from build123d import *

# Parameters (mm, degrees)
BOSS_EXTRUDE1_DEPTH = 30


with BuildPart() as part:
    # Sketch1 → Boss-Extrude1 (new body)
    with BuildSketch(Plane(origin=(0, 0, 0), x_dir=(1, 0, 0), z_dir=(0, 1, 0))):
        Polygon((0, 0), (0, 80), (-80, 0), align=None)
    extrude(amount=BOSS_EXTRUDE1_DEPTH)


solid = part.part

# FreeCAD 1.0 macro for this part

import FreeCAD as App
import Part
import Sketcher
Q = App.Units.Quantity

doc = App.newDocument("Part")
params = doc.addObject("Spreadsheet::Sheet", "Params")
for row, (alias, value) in enumerate([
    ("sketch1_width", "80 mm"),
    ("pad1_length", "30 mm"),
], start=1):
    params.set(f"A{row}", alias)
    params.set(f"B{row}", "=" + value)
    params.setAlias(f"B{row}", alias)

body = doc.addObject("PartDesign::Body", "Body")

# Sketch on XZ plane
sketch1 = body.newObject("Sketcher::SketchObject", "Sketch")
sketch1.AttachmentSupport = (doc.getObject("XZ_Plane"), [""])
sketch1.MapMode = "FlatFace"
sketch1.addGeometry(Part.LineSegment(App.Vector(0, 0, 0), App.Vector(0, -80, 0)), False)
sketch1.addGeometry(Part.LineSegment(App.Vector(0, -80, 0), App.Vector(-80, 0, 0)), False)
sketch1.addGeometry(Part.LineSegment(App.Vector(-80, 0, 0), App.Vector(0, 0, 0)), False)
sketch1.addConstraint(Sketcher.Constraint("Coincident", 0, 2, 1, 1))
sketch1.addConstraint(Sketcher.Constraint("Coincident", 1, 2, 2, 1))
sketch1.addConstraint(Sketcher.Constraint("Coincident", 2, 2, 0, 1))
sketch1.addConstraint(Sketcher.Constraint("Vertical", 0))
sketch1.addConstraint(Sketcher.Constraint("Horizontal", 2))
sketch1.addConstraint(Sketcher.Constraint("Coincident", 2, 2, -1, 1))
sketch1.addConstraint(Sketcher.Constraint("Equal", 2, 0))
sketch1.addConstraint(Sketcher.Constraint("DistanceX", 2, 1, 2, 2, Q("80 mm")))
sketch1.setExpression("Constraints[7]", "Params.sketch1_width")
pad1 = body.newObject("PartDesign::Pad", "Pad")
pad1.Profile = sketch1
pad1.setExpression("Length", "Params.pad1_length")
pad1.Reversed = True

doc.recompute()
